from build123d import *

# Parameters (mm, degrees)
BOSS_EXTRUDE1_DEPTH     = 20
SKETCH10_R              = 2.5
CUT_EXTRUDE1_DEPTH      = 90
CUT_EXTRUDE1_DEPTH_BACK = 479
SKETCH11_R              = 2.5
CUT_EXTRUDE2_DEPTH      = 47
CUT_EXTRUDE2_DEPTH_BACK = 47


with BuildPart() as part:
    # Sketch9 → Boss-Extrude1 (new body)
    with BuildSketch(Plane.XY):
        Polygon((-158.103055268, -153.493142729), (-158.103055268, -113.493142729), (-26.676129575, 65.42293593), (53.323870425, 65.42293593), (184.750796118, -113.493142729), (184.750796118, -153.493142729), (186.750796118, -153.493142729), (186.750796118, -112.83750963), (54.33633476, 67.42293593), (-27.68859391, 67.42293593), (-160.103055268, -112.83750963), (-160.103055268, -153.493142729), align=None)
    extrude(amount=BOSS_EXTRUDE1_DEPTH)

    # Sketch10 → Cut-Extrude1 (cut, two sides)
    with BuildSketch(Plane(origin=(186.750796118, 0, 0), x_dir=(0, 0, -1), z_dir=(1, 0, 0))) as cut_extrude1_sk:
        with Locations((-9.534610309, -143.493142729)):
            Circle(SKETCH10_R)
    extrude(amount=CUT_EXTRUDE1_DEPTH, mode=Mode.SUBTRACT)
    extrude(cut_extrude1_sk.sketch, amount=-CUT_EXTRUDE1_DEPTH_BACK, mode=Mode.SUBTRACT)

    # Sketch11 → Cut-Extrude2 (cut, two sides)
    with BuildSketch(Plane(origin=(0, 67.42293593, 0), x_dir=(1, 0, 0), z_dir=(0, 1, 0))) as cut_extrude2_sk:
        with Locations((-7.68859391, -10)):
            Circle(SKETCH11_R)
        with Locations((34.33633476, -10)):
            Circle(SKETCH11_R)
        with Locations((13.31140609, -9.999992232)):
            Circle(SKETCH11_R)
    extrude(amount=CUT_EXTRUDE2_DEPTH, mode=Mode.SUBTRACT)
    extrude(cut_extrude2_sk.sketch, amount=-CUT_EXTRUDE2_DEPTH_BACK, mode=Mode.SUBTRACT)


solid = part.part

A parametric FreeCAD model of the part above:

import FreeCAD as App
import Part
import Sketcher

V = App.Vector
Q = App.Units.Quantity

doc = App.newDocument("Part")
body = doc.addObject("PartDesign::Body", "Body")

sketch1 = doc.addObject("Sketcher::SketchObject", "Sketch")
body.addObject(sketch1)
sketch1.AttachmentSupport = (doc.XY_Plane, [""])
sketch1.MapMode = "FlatFace"
sketch1.addGeometry(Part.LineSegment(V(-158.103055, -153.493143, 0), V(-158.103055, -113.493143, 0)), False)
sketch1.addGeometry(Part.LineSegment(V(-158.103055, -113.493143, 0), V(-26.67613, 65.422936, 0)), False)
sketch1.addGeometry(Part.LineSegment(V(-26.67613, 65.422936, 0), V(53.32387, 65.422936, 0)), False)
sketch1.addGeometry(Part.LineSegment(V(53.32387, 65.422936, 0), V(184.750796, -113.493143, 0)), False)
sketch1.addGeometry(Part.LineSegment(V(184.750796, -113.493143, 0), V(184.750796, -153.493143, 0)), False)
sketch1.addGeometry(Part.LineSegment(V(184.750796, -153.493143, 0), V(186.750796, -153.493143, 0)), False)
sketch1.addGeometry(Part.LineSegment(V(186.750796, -153.493143, 0), V(186.750796, -112.83751, 0)), False)
sketch1.addGeometry(Part.LineSegment(V(186.750796, -112.83751, 0), V(54.336335, 67.422936, 0)), False)
sketch1.addGeometry(Part.LineSegment(V(54.336335, 67.422936, 0), V(-27.688594, 67.422936, 0)), False)
sketch1.addGeometry(Part.LineSegment(V(-27.688594, 67.422936, 0), V(-160.103055, -112.83751, 0)), False)
sketch1.addGeometry(Part.LineSegment(V(-160.103055, -112.83751, 0), V(-160.103055, -153.493143, 0)), False)
sketch1.addGeometry(Part.LineSegment(V(-160.103055, -153.493143, 0), V(-158.103055, -153.493143, 0)), False)
sketch1.addConstraint(Sketcher.Constraint("Coincident", 0, 2, 1, 1))
sketch1.addConstraint(Sketcher.Constraint("Coincident", 1, 2, 2, 1))
sketch1.addConstraint(Sketcher.Constraint("Coincident", 2, 2, 3, 1))
sketch1.addConstraint(Sketcher.Constraint("Coincident", 3, 2, 4, 1))
sketch1.addConstraint(Sketcher.Constraint("Coincident", 4, 2, 5, 1))
sketch1.addConstraint(Sketcher.Constraint("Coincident", 5, 2, 6, 1))
sketch1.addConstraint(Sketcher.Constraint("Coincident", 6, 2, 7, 1))
sketch1.addConstraint(Sketcher.Constraint("Coincident", 7, 2, 8, 1))
sketch1.addConstraint(Sketcher.Constraint("Coincident", 8, 2, 9, 1))
sketch1.addConstraint(Sketcher.Constraint("Coincident", 9, 2, 10, 1))
sketch1.addConstraint(Sketcher.Constraint("Coincident", 10, 2, 11, 1))
sketch1.addConstraint(Sketcher.Constraint("Coincident", 11, 2, 0, 1))
sketch1.addConstraint(Sketcher.Constraint("Vertical", 0))
sketch1.addConstraint(Sketcher.Constraint("Horizontal", 2))
sketch1.addConstraint(Sketcher.Constraint("Vertical", 4))
sketch1.addConstraint(Sketcher.Constraint("Horizontal", 5))
sketch1.addConstraint(Sketcher.Constraint("Vertical", 6))
sketch1.addConstraint(Sketcher.Constraint("Horizontal", 8))
sketch1.addConstraint(Sketcher.Constraint("Vertical", 10))
sketch1.addConstraint(Sketcher.Constraint("Horizontal", 11))
sketch1.addConstraint(Sketcher.Constraint("Parallel", 3, 7))
sketch1.addConstraint(Sketcher.Constraint("Parallel", 1, 9))
sketch1.addConstraint(Sketcher.Constraint("Horizontal", 0, 2, 3, 2))
sketch1.addConstraint(Sketcher.Constraint("Horizontal", 6, 2, 9, 2))
sketch1.addConstraint(Sketcher.Constraint("Horizontal", 5, 2, 10, 2))
sketch1.addConstraint(Sketcher.Constraint("Equal", 5, 11))
sketch1.addConstraint(Sketcher.Constraint("Equal", 1, 3))
sketch1.addConstraint(Sketcher.Constraint("DistanceX", 2, 1, 2, 2, Q("80 mm")))
sketch1.addConstraint(Sketcher.Constraint("DistanceX", 5, 1, 5, 2, Q("2 mm")))
sketch1.addConstraint(Sketcher.Constraint("DistanceY", 0, 1, 0, 2, Q("40 mm")))
sketch1.addConstraint(Sketcher.Constraint("Distance", 1, Q("222 mm")))
sketch1.addConstraint(Sketcher.Constraint("Angle", 1, Q("53.7 deg")))
sketch1.addConstraint(Sketcher.Constraint("DistanceY", 2, 2, 7, 2, Q("2 mm")))
sketch1.addConstraint(Sketcher.Constraint("DistanceX", 8, 2, 8, 1, Q("82.024929 mm")))
sketch1.addConstraint(Sketcher.Constraint("DistanceX", 1, 2, -1, 1, Q("26.67613 mm")))
sketch1.addConstraint(Sketcher.Constraint("DistanceY", 6, 2, -1, 1, Q("112.83751 mm")))
pad1 = doc.addObject("PartDesign::Pad", "Pad")
body.addObject(pad1)
pad1.Profile = sketch1
pad1.Length = 20

sketch2 = doc.addObject("Sketcher::SketchObject", "Sketch001")
body.addObject(sketch2)
sketch2.AttachmentSupport = (doc.YZ_Plane, [""])
sketch2.MapMode = "FlatFace"
sketch2.AttachmentOffset = App.Placement(V(0, 0, 186.750796), App.Rotation())
sketch2.addGeometry(Part.Circle(V(-143.493143, 9.53461, 0), V(0, 0, 1), 2.5), False)
sketch2.addConstraint(Sketcher.Constraint("Diameter", 0, Q("5 mm")))
sketch2.addConstraint(Sketcher.Constraint("DistanceY", -1, 1, 0, 3, Q("9.53461 mm")))
sketch2.addConstraint(Sketcher.Constraint("DistanceX", 0, 3, -1, 1, Q("143.493143 mm")))
pocket1 = doc.addObject("PartDesign::Pocket", "Pocket")
body.addObject(pocket1)
pocket1.Profile = sketch2
pocket1.Type = "ThroughAll"
pocket1.Midplane = True

sketch3 = doc.addObject("Sketcher::SketchObject", "Sketch002")
body.addObject(sketch3)
sketch3.AttachmentSupport = (doc.XZ_Plane, [""])
sketch3.MapMode = "FlatFace"
sketch3.AttachmentOffset = App.Placement(V(0, 0, -67.422936), App.Rotation())
sketch3.addGeometry(Part.Circle(V(-7.688594, 10, 0), V(0, 0, 1), 2.5), False)
sketch3.addGeometry(Part.Circle(V(34.336335, 10, 0), V(0, 0, 1), 2.5), False)
sketch3.addGeometry(Part.Circle(V(13.311406, 9.999992, 0), V(0, 0, 1), 2.5), False)
sketch3.addConstraint(Sketcher.Constraint("Equal", 0, 1))
sketch3.addConstraint(Sketcher.Constraint("Equal", 1, 2))
sketch3.addConstraint(Sketcher.Constraint("Horizontal", 0, 3, 1, 3))
sketch3.addConstraint(Sketcher.Constraint("Diameter", 0, Q("5 mm")))
sketch3.addConstraint(Sketcher.Constraint("DistanceY", -1, 1, 0, 3, Q("10 mm")))
sketch3.addConstraint(Sketcher.Constraint("DistanceX", 0, 3, 2, 3, Q("21 mm")))
sketch3.addConstraint(Sketcher.Constraint("DistanceX", 0, 3, 1, 3, Q("42.024929 mm")))
sketch3.addConstraint(Sketcher.Constraint("DistanceX", 0, 3, -1, 1, Q("7.688594 mm")))
sketch3.addConstraint(Sketcher.Constraint("DistanceY", -1, 1, 2, 3, Q("9.999992 mm")))
pocket2 = doc.addObject("PartDesign::Pocket", "Pocket001")
body.addObject(pocket2)
pocket2.Profile = sketch3
pocket2.Type = "ThroughAll"
pocket2.Midplane = True

doc.recompute()
